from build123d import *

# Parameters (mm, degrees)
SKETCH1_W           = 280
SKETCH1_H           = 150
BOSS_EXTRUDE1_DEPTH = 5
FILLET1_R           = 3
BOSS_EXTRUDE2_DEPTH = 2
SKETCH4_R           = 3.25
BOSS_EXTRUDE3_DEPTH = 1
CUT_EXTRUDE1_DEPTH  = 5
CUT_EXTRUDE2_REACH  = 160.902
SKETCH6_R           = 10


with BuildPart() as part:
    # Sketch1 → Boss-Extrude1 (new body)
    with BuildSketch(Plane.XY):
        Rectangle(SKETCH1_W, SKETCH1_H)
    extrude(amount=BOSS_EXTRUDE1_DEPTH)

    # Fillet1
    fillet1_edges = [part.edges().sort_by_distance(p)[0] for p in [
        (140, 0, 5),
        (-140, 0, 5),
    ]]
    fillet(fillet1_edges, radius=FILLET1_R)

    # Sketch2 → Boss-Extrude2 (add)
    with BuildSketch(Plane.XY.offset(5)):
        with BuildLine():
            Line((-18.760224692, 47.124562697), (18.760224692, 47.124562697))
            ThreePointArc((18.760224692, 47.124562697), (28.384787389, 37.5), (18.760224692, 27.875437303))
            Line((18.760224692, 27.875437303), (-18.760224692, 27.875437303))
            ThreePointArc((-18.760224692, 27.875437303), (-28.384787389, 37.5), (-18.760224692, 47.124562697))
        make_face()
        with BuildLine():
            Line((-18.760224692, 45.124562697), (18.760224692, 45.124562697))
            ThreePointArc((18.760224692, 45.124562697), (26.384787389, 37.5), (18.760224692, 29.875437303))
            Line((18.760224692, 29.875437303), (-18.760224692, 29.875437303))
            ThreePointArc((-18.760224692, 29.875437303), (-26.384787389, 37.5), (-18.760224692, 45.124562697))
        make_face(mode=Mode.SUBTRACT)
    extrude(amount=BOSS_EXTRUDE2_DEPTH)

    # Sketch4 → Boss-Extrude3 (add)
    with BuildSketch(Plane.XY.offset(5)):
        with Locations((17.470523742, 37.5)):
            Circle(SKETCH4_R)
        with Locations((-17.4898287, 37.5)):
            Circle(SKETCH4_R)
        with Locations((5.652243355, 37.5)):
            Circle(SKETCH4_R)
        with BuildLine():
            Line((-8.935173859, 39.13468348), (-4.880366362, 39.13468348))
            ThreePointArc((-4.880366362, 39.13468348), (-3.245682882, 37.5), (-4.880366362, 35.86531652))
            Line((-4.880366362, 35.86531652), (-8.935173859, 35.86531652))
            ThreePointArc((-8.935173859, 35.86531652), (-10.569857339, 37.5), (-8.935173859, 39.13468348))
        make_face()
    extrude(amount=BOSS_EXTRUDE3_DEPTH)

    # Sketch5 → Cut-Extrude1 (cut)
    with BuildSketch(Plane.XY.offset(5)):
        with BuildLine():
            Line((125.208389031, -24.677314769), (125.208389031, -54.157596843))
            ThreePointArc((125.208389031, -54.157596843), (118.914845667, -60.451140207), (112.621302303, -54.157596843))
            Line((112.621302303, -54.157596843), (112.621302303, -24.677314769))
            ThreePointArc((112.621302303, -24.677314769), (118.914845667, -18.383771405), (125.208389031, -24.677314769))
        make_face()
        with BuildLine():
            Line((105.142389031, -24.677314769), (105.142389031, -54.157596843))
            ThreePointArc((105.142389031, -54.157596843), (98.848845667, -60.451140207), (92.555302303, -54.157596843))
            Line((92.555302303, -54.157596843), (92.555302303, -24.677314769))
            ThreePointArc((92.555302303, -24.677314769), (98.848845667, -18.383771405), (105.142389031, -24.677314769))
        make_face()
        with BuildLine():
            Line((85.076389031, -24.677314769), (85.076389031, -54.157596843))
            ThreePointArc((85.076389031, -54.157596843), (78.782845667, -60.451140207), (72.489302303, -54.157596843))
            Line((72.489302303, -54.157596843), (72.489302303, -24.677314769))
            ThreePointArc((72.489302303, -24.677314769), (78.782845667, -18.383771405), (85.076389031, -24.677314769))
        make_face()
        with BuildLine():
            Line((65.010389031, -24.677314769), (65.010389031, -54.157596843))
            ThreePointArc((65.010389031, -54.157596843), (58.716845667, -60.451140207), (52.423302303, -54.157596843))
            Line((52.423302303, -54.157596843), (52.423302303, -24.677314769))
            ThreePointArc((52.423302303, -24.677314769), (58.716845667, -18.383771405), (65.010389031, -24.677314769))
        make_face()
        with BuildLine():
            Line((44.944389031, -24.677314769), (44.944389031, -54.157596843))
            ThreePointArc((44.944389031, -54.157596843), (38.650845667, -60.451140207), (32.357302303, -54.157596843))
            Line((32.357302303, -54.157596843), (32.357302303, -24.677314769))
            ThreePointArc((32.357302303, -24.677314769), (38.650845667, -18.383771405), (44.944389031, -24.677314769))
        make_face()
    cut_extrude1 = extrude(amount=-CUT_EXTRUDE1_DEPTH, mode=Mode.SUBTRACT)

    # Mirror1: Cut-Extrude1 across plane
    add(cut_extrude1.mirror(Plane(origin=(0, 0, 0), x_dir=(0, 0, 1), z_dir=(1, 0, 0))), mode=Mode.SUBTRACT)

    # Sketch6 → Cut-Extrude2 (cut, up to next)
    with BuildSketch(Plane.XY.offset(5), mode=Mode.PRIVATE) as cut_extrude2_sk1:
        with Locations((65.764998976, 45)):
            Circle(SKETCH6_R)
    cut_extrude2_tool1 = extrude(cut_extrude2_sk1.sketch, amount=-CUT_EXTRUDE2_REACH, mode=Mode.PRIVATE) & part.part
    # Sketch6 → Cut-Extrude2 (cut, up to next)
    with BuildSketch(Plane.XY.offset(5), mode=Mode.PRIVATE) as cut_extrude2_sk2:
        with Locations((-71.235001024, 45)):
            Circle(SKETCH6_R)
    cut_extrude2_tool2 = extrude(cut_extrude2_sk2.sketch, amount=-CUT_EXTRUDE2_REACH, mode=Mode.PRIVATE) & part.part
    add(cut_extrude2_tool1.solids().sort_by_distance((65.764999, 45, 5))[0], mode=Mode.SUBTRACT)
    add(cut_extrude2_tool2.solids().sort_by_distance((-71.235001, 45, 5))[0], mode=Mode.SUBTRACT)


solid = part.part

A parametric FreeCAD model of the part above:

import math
import FreeCAD as App
import Part
import Sketcher

V = App.Vector
Q = App.Units.Quantity


def edges_at(feature, points):
    """Names of the edges that pass closest to the given points."""
    edges = feature.Shape.Edges
    near = lambda p: min(range(len(edges)), key=lambda i: edges[i].distToShape(Part.Vertex(*p))[0])
    return sorted({f"Edge{near(p) + 1}" for p in points})


def add_polygon(sketch, points):
    """Adds a closed chain of lines whose ends are joined by coincident constraints."""
    first, n = sketch.GeometryCount, len(points)
    for a, b in zip(points, points[1:] + points[:1]):
        sketch.addGeometry(Part.LineSegment(App.Vector(*a, 0), App.Vector(*b, 0)), False)
    for i in range(n):
        sketch.addConstraint(Sketcher.Constraint("Coincident", first + i, 2, first + (i + 1) % n, 1))

doc = App.newDocument("Part")
params = doc.addObject("Spreadsheet::Sheet", "Params")
for row, (alias, value) in enumerate([
    ("sketch1_width", "280 mm"),
    ("sketch1_height", "150 mm"),
    ("pad1_length", "5 mm"),
    ("fillet_radius", "3 mm"),
    ("pad2_length", "2 mm"),
    ("sketch3_diameter", "6.5 mm"),
    ("pad3_length", "1 mm"),
    ("pocket1_length", "5 mm"),
    ("sketch5_diameter", "20 mm"),
    ("sketch6_diameter", "20 mm"),
], start=1):
    params.set(f"A{row}", alias)
    params.set(f"B{row}", "=" + value)
    params.setAlias(f"B{row}", alias)

body = doc.addObject("PartDesign::Body", "Body")

# Sketch on XY plane
sketch1 = doc.addObject("Sketcher::SketchObject", "Sketch")
body.addObject(sketch1)
sketch1.AttachmentSupport = (doc.XY_Plane, [""])
sketch1.MapMode = "FlatFace"
add_polygon(sketch1, [(-140, 75), (-140, -75), (140, -75), (140, 75)])  # lines 0-3
sketch1.addConstraint(Sketcher.Constraint("Vertical", 0))
sketch1.addConstraint(Sketcher.Constraint("Horizontal", 1))
sketch1.addConstraint(Sketcher.Constraint("Vertical", 2))
sketch1.addConstraint(Sketcher.Constraint("Horizontal", 3))
sketch1.addConstraint(Sketcher.Constraint("Symmetric", 0, 2, 2, 2, -1, 1))
sketch1.addConstraint(Sketcher.Constraint("DistanceX", 1, 1, 1, 2, Q("280 mm")))
sketch1.addConstraint(Sketcher.Constraint("DistanceY", 0, 2, 0, 1, Q("150 mm")))
sketch1.setExpression("Constraints[9]", "Params.sketch1_width")
sketch1.setExpression("Constraints[10]", "Params.sketch1_height")
pad1 = doc.addObject("PartDesign::Pad", "Pad")
body.addObject(pad1)
pad1.Profile = sketch1
pad1.setExpression("Length", "Params.pad1_length")
doc.recompute()

fillet = doc.addObject("PartDesign::Fillet", "Fillet")
body.addObject(fillet)
fillet.Base = (pad1, edges_at(pad1, [(140, 0, 5), (-140, 0, 5)]))
fillet.setExpression("Radius", "Params.fillet_radius")

# Sketch on XY plane
sketch2 = doc.addObject("Sketcher::SketchObject", "Sketch001")
body.addObject(sketch2)
sketch2.AttachmentSupport = (doc.XY_Plane, [""])
sketch2.MapMode = "FlatFace"
sketch2.AttachmentOffset = App.Placement(V(0, 0, 5), App.Rotation())
sketch2.addGeometry(Part.LineSegment(V(18.760225, 47.124563, 0), V(-18.760225, 47.124563, 0)), False)
sketch2.addGeometry(Part.ArcOfCircle(Part.Circle(V(-18.760225, 37.5, 0), V(0, 0, 1), 9.624563), math.radians(90), math.radians(270)), False)
sketch2.addGeometry(Part.LineSegment(V(-18.760225, 27.875437, 0), V(18.760225, 27.875437, 0)), False)
sketch2.addGeometry(Part.ArcOfCircle(Part.Circle(V(18.760225, 37.5, 0), V(0, 0, 1), 9.624563), math.radians(-90), math.radians(90)), False)
sketch2.addGeometry(Part.LineSegment(V(-18.760225, 45.124563, 0), V(18.760225, 45.124563, 0)), False)
sketch2.addGeometry(Part.ArcOfCircle(Part.Circle(V(18.760225, 37.5, 0), V(0, 0, 1), 7.624563), math.radians(-90), math.radians(90)), False)
sketch2.addGeometry(Part.LineSegment(V(18.760225, 29.875437, 0), V(-18.760225, 29.875437, 0)), False)
sketch2.addGeometry(Part.ArcOfCircle(Part.Circle(V(-18.760225, 37.5, 0), V(0, 0, 1), 7.624563), math.radians(90), math.radians(270)), False)
sketch2.addConstraint(Sketcher.Constraint("Tangent", 0, 2, 1, 1))
sketch2.addConstraint(Sketcher.Constraint("Tangent", 1, 2, 2, 1))
sketch2.addConstraint(Sketcher.Constraint("Tangent", 2, 2, 3, 1))
sketch2.addConstraint(Sketcher.Constraint("Tangent", 3, 2, 0, 1))
sketch2.addConstraint(Sketcher.Constraint("Tangent", 4, 2, 5, 2))
sketch2.addConstraint(Sketcher.Constraint("Tangent", 5, 1, 6, 1))
sketch2.addConstraint(Sketcher.Constraint("Tangent", 6, 2, 7, 2))
sketch2.addConstraint(Sketcher.Constraint("Tangent", 7, 1, 4, 1))
sketch2.addConstraint(Sketcher.Constraint("Horizontal", 0))
sketch2.addConstraint(Sketcher.Constraint("Horizontal", 2))
sketch2.addConstraint(Sketcher.Constraint("Horizontal", 4))
sketch2.addConstraint(Sketcher.Constraint("Horizontal", 6))
sketch2.addConstraint(Sketcher.Constraint("Coincident", 5, 3, 3, 3))
sketch2.addConstraint(Sketcher.Constraint("Vertical", 7, 3, 0, 2))
sketch2.addConstraint(Sketcher.Constraint("DistanceY", 4, 2, 3, 2, Q("2 mm")))
sketch2.addConstraint(Sketcher.Constraint("DistanceY", -1, 1, 1, 3, Q("37.5 mm")))
sketch2.addConstraint(Sketcher.Constraint("Radius", 1, Q("9.624563 mm")))
sketch2.addConstraint(Sketcher.Constraint("DistanceX", 0, 2, 0, 1, Q("37.520449 mm")))
sketch2.addConstraint(Sketcher.Constraint("DistanceX", 1, 3, -1, 1, Q("18.760225 mm")))
pad2 = doc.addObject("PartDesign::Pad", "Pad001")
body.addObject(pad2)
pad2.Profile = sketch2
pad2.setExpression("Length", "Params.pad2_length")

# Sketch on XY plane
sketch3 = doc.addObject("Sketcher::SketchObject", "Sketch002")
body.addObject(sketch3)
sketch3.AttachmentSupport = (doc.XY_Plane, [""])
sketch3.MapMode = "FlatFace"
sketch3.AttachmentOffset = App.Placement(V(0, 0, 5), App.Rotation())
sketch3.addGeometry(Part.Circle(V(17.470524, 37.5, 0), V(0, 0, 1), 3.25), False)
sketch3.addGeometry(Part.Circle(V(-17.489829, 37.5, 0), V(0, 0, 1), 3.25), False)
sketch3.addGeometry(Part.Circle(V(5.652243, 37.5, 0), V(0, 0, 1), 3.25), False)
sketch3.addGeometry(Part.LineSegment(V(-4.880366, 39.134683, 0), V(-8.935174, 39.134683, 0)), False)
sketch3.addGeometry(Part.ArcOfCircle(Part.Circle(V(-8.935174, 37.5, 0), V(0, 0, 1), 1.634683), math.radians(90), math.radians(270)), False)
sketch3.addGeometry(Part.LineSegment(V(-8.935174, 35.865317, 0), V(-4.880366, 35.865317, 0)), False)
sketch3.addGeometry(Part.ArcOfCircle(Part.Circle(V(-4.880366, 37.5, 0), V(0, 0, 1), 1.634683), math.radians(-90), math.radians(90)), False)
sketch3.addConstraint(Sketcher.Constraint("Tangent", 3, 2, 4, 1))
sketch3.addConstraint(Sketcher.Constraint("Tangent", 4, 2, 5, 1))
sketch3.addConstraint(Sketcher.Constraint("Tangent", 5, 2, 6, 1))
sketch3.addConstraint(Sketcher.Constraint("Tangent", 6, 2, 3, 1))
sketch3.addConstraint(Sketcher.Constraint("Horizontal", 3))
sketch3.addConstraint(Sketcher.Constraint("Horizontal", 5))
sketch3.addConstraint(Sketcher.Constraint("Equal", 0, 1))
sketch3.addConstraint(Sketcher.Constraint("Equal", 1, 2))
sketch3.addConstraint(Sketcher.Constraint("Horizontal", 0, 3, 1, 3))
sketch3.addConstraint(Sketcher.Constraint("Horizontal", 1, 3, 2, 3))
sketch3.addConstraint(Sketcher.Constraint("Horizontal", 2, 3, 4, 3))
sketch3.addConstraint(Sketcher.Constraint("Diameter", 0, Q("6.5 mm")))
sketch3.addConstraint(Sketcher.Constraint("DistanceY", -1, 1, 0, 3, Q("37.5 mm")))
sketch3.addConstraint(Sketcher.Constraint("Radius", 4, Q("1.634683 mm")))
sketch3.addConstraint(Sketcher.Constraint("DistanceX", 3, 2, 3, 1, Q("4.054807 mm")))
sketch3.addConstraint(Sketcher.Constraint("DistanceX", 1, 3, -1, 1, Q("17.489829 mm")))
sketch3.addConstraint(Sketcher.Constraint("DistanceX", 2, 3, 0, 3, Q("11.81828 mm")))
sketch3.addConstraint(Sketcher.Constraint("DistanceX", 6, 3, 2, 3, Q("10.53261 mm")))
sketch3.addConstraint(Sketcher.Constraint("DistanceX", -1, 1, 0, 3, Q("17.470524 mm")))
sketch3.setExpression("Constraints[11]", "Params.sketch3_diameter")
pad3 = doc.addObject("PartDesign::Pad", "Pad002")
body.addObject(pad3)
pad3.Profile = sketch3
pad3.setExpression("Length", "Params.pad3_length")

# Sketch on XY plane
sketch4 = doc.addObject("Sketcher::SketchObject", "Sketch003")
body.addObject(sketch4)
sketch4.AttachmentSupport = (doc.XY_Plane, [""])
sketch4.MapMode = "FlatFace"
sketch4.AttachmentOffset = App.Placement(V(0, 0, 5), App.Rotation())
sketch4.addGeometry(Part.LineSegment(V(125.208389, -54.157597, 0), V(125.208389, -24.677315, 0)), False)
sketch4.addGeometry(Part.ArcOfCircle(Part.Circle(V(118.914846, -24.677315, 0), V(0, 0, 1), 6.293543), math.radians(0), math.radians(180)), False)
sketch4.addGeometry(Part.LineSegment(V(112.621302, -24.677315, 0), V(112.621302, -54.157597, 0)), False)
sketch4.addGeometry(Part.ArcOfCircle(Part.Circle(V(118.914846, -54.157597, 0), V(0, 0, 1), 6.293543), math.radians(180), math.radians(360)), False)
sketch4.addGeometry(Part.LineSegment(V(105.142389, -54.157597, 0), V(105.142389, -24.677315, 0)), False)
sketch4.addGeometry(Part.ArcOfCircle(Part.Circle(V(98.848846, -24.677315, 0), V(0, 0, 1), 6.293543), math.radians(0), math.radians(180)), False)
sketch4.addGeometry(Part.LineSegment(V(92.555302, -24.677315, 0), V(92.555302, -54.157597, 0)), False)
sketch4.addGeometry(Part.ArcOfCircle(Part.Circle(V(98.848846, -54.157597, 0), V(0, 0, 1), 6.293543), math.radians(180), math.radians(360)), False)
sketch4.addGeometry(Part.LineSegment(V(85.076389, -54.157597, 0), V(85.076389, -24.677315, 0)), False)
sketch4.addGeometry(Part.ArcOfCircle(Part.Circle(V(78.782846, -24.677315, 0), V(0, 0, 1), 6.293543), math.radians(0), math.radians(180)), False)
sketch4.addGeometry(Part.LineSegment(V(72.489302, -24.677315, 0), V(72.489302, -54.157597, 0)), False)
sketch4.addGeometry(Part.ArcOfCircle(Part.Circle(V(78.782846, -54.157597, 0), V(0, 0, 1), 6.293543), math.radians(180), math.radians(360)), False)
sketch4.addGeometry(Part.LineSegment(V(65.010389, -54.157597, 0), V(65.010389, -24.677315, 0)), False)
sketch4.addGeometry(Part.ArcOfCircle(Part.Circle(V(58.716846, -24.677315, 0), V(0, 0, 1), 6.293543), math.radians(0), math.radians(180)), False)
sketch4.addGeometry(Part.LineSegment(V(52.423302, -24.677315, 0), V(52.423302, -54.157597, 0)), False)
sketch4.addGeometry(Part.ArcOfCircle(Part.Circle(V(58.716846, -54.157597, 0), V(0, 0, 1), 6.293543), math.radians(180), math.radians(360)), False)
sketch4.addGeometry(Part.LineSegment(V(44.944389, -54.157597, 0), V(44.944389, -24.677315, 0)), False)
sketch4.addGeometry(Part.ArcOfCircle(Part.Circle(V(38.650846, -24.677315, 0), V(0, 0, 1), 6.293543), math.radians(0), math.radians(180)), False)
sketch4.addGeometry(Part.LineSegment(V(32.357302, -24.677315, 0), V(32.357302, -54.157597, 0)), False)
sketch4.addGeometry(Part.ArcOfCircle(Part.Circle(V(38.650846, -54.157597, 0), V(0, 0, 1), 6.293543), math.radians(180), math.radians(360)), False)
sketch4.addConstraint(Sketcher.Constraint("Tangent", 0, 2, 1, 1))
sketch4.addConstraint(Sketcher.Constraint("Tangent", 1, 2, 2, 1))
sketch4.addConstraint(Sketcher.Constraint("Tangent", 2, 2, 3, 1))
sketch4.addConstraint(Sketcher.Constraint("Tangent", 3, 2, 0, 1))
sketch4.addConstraint(Sketcher.Constraint("Tangent", 4, 2, 5, 1))
sketch4.addConstraint(Sketcher.Constraint("Tangent", 5, 2, 6, 1))
sketch4.addConstraint(Sketcher.Constraint("Tangent", 6, 2, 7, 1))
sketch4.addConstraint(Sketcher.Constraint("Tangent", 7, 2, 4, 1))
sketch4.addConstraint(Sketcher.Constraint("Tangent", 8, 2, 9, 1))
sketch4.addConstraint(Sketcher.Constraint("Tangent", 9, 2, 10, 1))
sketch4.addConstraint(Sketcher.Constraint("Tangent", 10, 2, 11, 1))
sketch4.addConstraint(Sketcher.Constraint("Tangent", 11, 2, 8, 1))
sketch4.addConstraint(Sketcher.Constraint("Tangent", 12, 2, 13, 1))
sketch4.addConstraint(Sketcher.Constraint("Tangent", 13, 2, 14, 1))
sketch4.addConstraint(Sketcher.Constraint("Tangent", 14, 2, 15, 1))
sketch4.addConstraint(Sketcher.Constraint("Tangent", 15, 2, 12, 1))
sketch4.addConstraint(Sketcher.Constraint("Tangent", 16, 2, 17, 1))
sketch4.addConstraint(Sketcher.Constraint("Tangent", 17, 2, 18, 1))
sketch4.addConstraint(Sketcher.Constraint("Tangent", 18, 2, 19, 1))
sketch4.addConstraint(Sketcher.Constraint("Tangent", 19, 2, 16, 1))
sketch4.addConstraint(Sketcher.Constraint("Vertical", 0))
sketch4.addConstraint(Sketcher.Constraint("Vertical", 2))
sketch4.addConstraint(Sketcher.Constraint("Vertical", 4))
sketch4.addConstraint(Sketcher.Constraint("Vertical", 6))
sketch4.addConstraint(Sketcher.Constraint("Vertical", 8))
sketch4.addConstraint(Sketcher.Constraint("Vertical", 10))
sketch4.addConstraint(Sketcher.Constraint("Vertical", 12))
sketch4.addConstraint(Sketcher.Constraint("Vertical", 14))
sketch4.addConstraint(Sketcher.Constraint("Vertical", 16))
sketch4.addConstraint(Sketcher.Constraint("Vertical", 18))
sketch4.addConstraint(Sketcher.Constraint("Equal", 3, 5))
sketch4.addConstraint(Sketcher.Constraint("Equal", 7, 9))
sketch4.addConstraint(Sketcher.Constraint("Equal", 11, 13))
sketch4.addConstraint(Sketcher.Constraint("Equal", 15, 17))
sketch4.addConstraint(Sketcher.Constraint("Horizontal", 1, 3, 5, 3))
sketch4.addConstraint(Sketcher.Constraint("Horizontal", 3, 3, 7, 3))
sketch4.addConstraint(Sketcher.Constraint("Horizontal", 5, 3, 9, 3))
sketch4.addConstraint(Sketcher.Constraint("Horizontal", 7, 3, 11, 3))
sketch4.addConstraint(Sketcher.Constraint("Horizontal", 9, 3, 13, 3))
sketch4.addConstraint(Sketcher.Constraint("Horizontal", 11, 3, 15, 3))
sketch4.addConstraint(Sketcher.Constraint("Horizontal", 13, 3, 17, 3))
sketch4.addConstraint(Sketcher.Constraint("Horizontal", 15, 3, 19, 3))
sketch4.addConstraint(Sketcher.Constraint("Radius", 1, Q("6.293543 mm")))
sketch4.addConstraint(Sketcher.Constraint("DistanceX", 5, 3, 1, 3, Q("20.066 mm")))
sketch4.addConstraint(Sketcher.Constraint("DistanceX", 9, 3, 5, 3, Q("20.066 mm")))
sketch4.addConstraint(Sketcher.Constraint("DistanceX", 13, 3, 9, 3, Q("20.066 mm")))
sketch4.addConstraint(Sketcher.Constraint("DistanceX", 17, 3, 13, 3, Q("20.066 mm")))
sketch4.addConstraint(Sketcher.Constraint("DistanceY", 0, 1, 0, 2, Q("29.480282 mm")))
sketch4.addConstraint(Sketcher.Constraint("DistanceX", -1, 1, 0, 2, Q("125.208389 mm")))
sketch4.addConstraint(Sketcher.Constraint("DistanceY", 1, 3, -1, 1, Q("24.677315 mm")))
pocket1 = doc.addObject("PartDesign::Pocket", "Pocket")
body.addObject(pocket1)
pocket1.Profile = sketch4
pocket1.setExpression("Length", "Params.pocket1_length")
doc.recompute()

mirrored = doc.addObject("PartDesign::Mirrored", "Mirrored")
body.addObject(mirrored)
mirrored.Originals = [pocket1]
mirrored.MirrorPlane = (doc.YZ_Plane, [""])
body.Tip = mirrored

# Sketch on XY plane
sketch5 = doc.addObject("Sketcher::SketchObject", "Sketch004")
body.addObject(sketch5)
sketch5.AttachmentSupport = (doc.XY_Plane, [""])
sketch5.MapMode = "FlatFace"
sketch5.AttachmentOffset = App.Placement(V(0, 0, 5), App.Rotation())
sketch5.addGeometry(Part.Circle(V(65.764999, 45, 0), V(0, 0, 1), 10), False)
sketch5.addConstraint(Sketcher.Constraint("Diameter", 0, Q("20 mm")))
sketch5.addConstraint(Sketcher.Constraint("DistanceY", -1, 1, 0, 3, Q("45 mm")))
sketch5.addConstraint(Sketcher.Constraint("DistanceX", -1, 1, 0, 3, Q("65.764999 mm")))
sketch5.setExpression("Constraints[0]", "Params.sketch5_diameter")
pocket2 = doc.addObject("PartDesign::Pocket", "Pocket001")
body.addObject(pocket2)
pocket2.Profile = sketch5
pocket2.Type = "UpToFirst"

# Sketch on XY plane
sketch6 = doc.addObject("Sketcher::SketchObject", "Sketch005")
body.addObject(sketch6)
sketch6.AttachmentSupport = (doc.XY_Plane, [""])
sketch6.MapMode = "FlatFace"
sketch6.AttachmentOffset = App.Placement(V(0, 0, 5), App.Rotation())
sketch6.addGeometry(Part.Circle(V(-71.235001, 45, 0), V(0, 0, 1), 10), False)
sketch6.addConstraint(Sketcher.Constraint("Diameter", 0, Q("20 mm")))
sketch6.addConstraint(Sketcher.Constraint("DistanceY", -1, 1, 0, 3, Q("45 mm")))
sketch6.addConstraint(Sketcher.Constraint("DistanceX", 0, 3, -1, 1, Q("71.235001 mm")))
sketch6.setExpression("Constraints[0]", "Params.sketch6_diameter")
pocket3 = doc.addObject("PartDesign::Pocket", "Pocket002")
body.addObject(pocket3)
pocket3.Profile = sketch6
pocket3.Type = "UpToFirst"

doc.recompute()
